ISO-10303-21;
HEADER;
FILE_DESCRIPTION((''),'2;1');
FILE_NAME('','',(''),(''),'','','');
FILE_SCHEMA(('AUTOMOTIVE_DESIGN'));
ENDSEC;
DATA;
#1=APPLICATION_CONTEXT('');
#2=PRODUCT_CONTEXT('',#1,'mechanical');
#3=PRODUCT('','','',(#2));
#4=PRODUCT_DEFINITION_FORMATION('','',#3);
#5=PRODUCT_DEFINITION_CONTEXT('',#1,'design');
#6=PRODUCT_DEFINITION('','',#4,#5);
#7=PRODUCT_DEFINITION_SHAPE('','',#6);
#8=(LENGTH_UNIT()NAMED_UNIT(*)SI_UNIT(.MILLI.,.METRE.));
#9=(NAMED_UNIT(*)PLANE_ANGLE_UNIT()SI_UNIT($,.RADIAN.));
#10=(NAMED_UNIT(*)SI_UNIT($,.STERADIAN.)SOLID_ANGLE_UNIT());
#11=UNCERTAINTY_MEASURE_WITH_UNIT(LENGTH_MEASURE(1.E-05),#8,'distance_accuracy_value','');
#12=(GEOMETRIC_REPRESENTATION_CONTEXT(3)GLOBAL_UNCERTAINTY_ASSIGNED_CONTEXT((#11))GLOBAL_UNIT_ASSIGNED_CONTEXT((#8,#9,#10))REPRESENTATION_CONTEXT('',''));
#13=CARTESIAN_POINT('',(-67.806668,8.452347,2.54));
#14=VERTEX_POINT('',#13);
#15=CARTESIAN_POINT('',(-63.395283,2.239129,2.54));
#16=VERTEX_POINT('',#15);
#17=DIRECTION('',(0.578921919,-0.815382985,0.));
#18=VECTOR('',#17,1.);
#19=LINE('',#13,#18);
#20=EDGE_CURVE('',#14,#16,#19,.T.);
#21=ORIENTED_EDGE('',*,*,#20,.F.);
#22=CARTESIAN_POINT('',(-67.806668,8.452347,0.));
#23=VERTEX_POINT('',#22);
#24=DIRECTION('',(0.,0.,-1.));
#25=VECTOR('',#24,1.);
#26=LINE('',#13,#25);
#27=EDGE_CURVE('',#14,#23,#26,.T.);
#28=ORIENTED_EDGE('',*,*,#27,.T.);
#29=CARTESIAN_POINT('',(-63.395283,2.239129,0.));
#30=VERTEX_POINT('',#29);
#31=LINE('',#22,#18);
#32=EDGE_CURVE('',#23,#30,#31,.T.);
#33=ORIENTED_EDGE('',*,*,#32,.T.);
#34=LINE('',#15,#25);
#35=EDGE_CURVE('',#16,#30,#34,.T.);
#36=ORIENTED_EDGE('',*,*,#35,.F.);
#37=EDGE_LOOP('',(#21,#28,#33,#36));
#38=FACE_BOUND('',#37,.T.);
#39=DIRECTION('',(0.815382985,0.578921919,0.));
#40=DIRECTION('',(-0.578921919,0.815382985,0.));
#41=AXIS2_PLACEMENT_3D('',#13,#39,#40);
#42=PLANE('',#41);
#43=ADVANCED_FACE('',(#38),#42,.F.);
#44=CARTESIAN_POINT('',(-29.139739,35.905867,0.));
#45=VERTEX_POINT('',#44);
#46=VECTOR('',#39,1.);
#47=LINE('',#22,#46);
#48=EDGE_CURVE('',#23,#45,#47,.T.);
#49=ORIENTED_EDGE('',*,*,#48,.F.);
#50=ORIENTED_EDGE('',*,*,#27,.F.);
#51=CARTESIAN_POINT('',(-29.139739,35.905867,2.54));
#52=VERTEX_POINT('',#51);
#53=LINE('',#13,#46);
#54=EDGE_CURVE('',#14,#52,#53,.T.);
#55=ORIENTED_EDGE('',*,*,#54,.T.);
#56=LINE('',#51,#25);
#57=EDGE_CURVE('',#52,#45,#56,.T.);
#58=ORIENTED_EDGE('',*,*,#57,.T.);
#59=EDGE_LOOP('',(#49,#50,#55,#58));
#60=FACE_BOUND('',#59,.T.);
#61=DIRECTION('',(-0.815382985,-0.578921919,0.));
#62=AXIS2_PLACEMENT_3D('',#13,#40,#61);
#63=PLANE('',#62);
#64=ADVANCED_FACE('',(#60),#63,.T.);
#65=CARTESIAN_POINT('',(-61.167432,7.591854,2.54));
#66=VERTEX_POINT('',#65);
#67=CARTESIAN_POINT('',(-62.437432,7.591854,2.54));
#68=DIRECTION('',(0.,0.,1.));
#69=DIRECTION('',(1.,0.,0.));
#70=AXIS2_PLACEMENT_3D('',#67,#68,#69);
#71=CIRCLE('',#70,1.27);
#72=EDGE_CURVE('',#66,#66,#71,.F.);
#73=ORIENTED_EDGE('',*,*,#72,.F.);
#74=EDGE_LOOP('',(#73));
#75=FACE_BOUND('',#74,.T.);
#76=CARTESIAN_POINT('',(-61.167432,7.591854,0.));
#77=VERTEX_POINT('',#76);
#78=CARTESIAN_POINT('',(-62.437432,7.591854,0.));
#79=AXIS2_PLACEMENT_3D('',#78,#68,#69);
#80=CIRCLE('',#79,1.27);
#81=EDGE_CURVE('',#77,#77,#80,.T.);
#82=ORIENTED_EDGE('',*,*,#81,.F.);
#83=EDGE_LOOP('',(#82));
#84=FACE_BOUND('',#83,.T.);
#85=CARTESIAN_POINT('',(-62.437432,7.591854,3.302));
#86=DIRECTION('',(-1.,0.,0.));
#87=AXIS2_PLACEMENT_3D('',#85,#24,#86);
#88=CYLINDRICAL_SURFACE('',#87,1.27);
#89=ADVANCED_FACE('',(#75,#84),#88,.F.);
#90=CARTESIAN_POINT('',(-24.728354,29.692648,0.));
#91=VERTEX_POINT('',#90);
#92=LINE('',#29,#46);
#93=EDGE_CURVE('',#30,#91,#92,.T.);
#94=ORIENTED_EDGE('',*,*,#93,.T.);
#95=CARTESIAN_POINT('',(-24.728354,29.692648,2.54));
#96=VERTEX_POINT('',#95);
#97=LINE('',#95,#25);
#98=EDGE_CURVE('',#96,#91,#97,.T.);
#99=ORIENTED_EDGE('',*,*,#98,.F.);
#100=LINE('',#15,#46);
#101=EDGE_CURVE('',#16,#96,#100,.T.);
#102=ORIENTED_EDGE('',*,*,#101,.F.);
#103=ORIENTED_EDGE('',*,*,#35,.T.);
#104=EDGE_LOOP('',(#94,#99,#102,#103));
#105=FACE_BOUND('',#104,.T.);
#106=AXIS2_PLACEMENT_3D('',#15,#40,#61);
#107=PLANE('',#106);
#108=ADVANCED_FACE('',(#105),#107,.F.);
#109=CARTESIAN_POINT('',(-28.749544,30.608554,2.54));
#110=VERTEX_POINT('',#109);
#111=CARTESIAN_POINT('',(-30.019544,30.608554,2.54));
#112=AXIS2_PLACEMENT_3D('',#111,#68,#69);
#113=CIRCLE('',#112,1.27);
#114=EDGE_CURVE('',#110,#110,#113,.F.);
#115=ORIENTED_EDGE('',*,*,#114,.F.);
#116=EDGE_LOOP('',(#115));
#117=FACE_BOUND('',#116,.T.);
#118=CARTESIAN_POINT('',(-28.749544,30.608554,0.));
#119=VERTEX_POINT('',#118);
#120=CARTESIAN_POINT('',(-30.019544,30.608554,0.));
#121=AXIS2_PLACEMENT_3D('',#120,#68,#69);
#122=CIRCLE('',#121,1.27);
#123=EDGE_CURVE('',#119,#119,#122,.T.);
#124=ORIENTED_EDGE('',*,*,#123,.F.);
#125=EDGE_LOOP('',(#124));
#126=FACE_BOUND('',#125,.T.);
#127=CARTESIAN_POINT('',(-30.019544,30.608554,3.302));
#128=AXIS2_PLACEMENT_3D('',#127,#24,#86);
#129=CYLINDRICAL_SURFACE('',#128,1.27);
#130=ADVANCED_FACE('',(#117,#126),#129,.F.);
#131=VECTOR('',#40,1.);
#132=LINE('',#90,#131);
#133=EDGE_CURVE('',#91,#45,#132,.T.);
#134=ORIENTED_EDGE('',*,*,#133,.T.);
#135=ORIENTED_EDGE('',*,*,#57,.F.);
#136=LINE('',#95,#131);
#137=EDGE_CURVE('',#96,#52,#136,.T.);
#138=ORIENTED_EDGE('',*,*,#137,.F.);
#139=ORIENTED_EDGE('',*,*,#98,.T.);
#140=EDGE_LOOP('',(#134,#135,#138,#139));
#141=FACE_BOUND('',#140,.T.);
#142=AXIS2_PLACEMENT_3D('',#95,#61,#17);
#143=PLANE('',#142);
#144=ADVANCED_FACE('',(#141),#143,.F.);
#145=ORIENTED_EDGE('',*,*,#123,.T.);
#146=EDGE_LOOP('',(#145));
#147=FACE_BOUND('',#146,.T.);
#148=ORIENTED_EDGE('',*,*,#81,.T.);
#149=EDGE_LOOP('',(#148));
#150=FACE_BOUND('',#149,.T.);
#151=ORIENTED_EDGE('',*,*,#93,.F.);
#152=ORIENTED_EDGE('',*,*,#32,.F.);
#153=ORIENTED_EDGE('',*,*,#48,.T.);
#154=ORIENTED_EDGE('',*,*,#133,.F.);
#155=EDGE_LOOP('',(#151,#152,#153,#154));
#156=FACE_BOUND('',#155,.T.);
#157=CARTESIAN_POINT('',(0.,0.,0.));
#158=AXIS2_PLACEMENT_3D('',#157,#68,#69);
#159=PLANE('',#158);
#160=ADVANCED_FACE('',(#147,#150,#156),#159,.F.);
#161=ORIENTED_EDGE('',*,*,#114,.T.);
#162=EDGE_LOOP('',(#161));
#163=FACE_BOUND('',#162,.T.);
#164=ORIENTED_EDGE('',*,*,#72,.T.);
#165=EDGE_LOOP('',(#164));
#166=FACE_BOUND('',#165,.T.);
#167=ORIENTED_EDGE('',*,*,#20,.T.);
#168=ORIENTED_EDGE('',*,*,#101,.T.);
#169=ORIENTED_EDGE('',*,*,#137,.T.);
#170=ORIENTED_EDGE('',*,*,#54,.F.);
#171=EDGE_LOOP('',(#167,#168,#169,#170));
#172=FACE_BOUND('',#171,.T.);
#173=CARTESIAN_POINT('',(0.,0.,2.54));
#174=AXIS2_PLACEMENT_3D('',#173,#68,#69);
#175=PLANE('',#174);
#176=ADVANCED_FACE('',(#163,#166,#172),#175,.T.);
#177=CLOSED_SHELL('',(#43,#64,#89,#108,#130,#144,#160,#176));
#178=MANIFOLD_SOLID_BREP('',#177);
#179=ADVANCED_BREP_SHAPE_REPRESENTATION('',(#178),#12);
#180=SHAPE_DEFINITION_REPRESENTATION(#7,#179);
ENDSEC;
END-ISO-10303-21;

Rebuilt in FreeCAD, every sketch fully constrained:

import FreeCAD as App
import Part
import Sketcher
Q = App.Units.Quantity

doc = App.newDocument("Part")
body = doc.addObject("PartDesign::Body", "Body")

# Sketch on XY plane
sketch1 = body.newObject("Sketcher::SketchObject", "Sketch")
sketch1.AttachmentSupport = (doc.getObject("XY_Plane"), [""])
sketch1.MapMode = "FlatFace"
sketch1.addGeometry(Part.LineSegment(App.Vector(-29.139739, 35.905867, 0), App.Vector(-67.806668, 8.452347, 0)), False)
sketch1.addGeometry(Part.LineSegment(App.Vector(-67.806668, 8.452347, 0), App.Vector(-63.395283, 2.239129, 0)), False)
sketch1.addGeometry(Part.LineSegment(App.Vector(-63.395283, 2.239129, 0), App.Vector(-24.728354, 29.692648, 0)), False)
sketch1.addGeometry(Part.LineSegment(App.Vector(-24.728354, 29.692648, 0), App.Vector(-29.139739, 35.905867, 0)), False)
sketch1.addConstraint(Sketcher.Constraint("Coincident", 0, 2, 1, 1))
sketch1.addConstraint(Sketcher.Constraint("Coincident", 1, 2, 2, 1))
sketch1.addConstraint(Sketcher.Constraint("Coincident", 2, 2, 3, 1))
sketch1.addConstraint(Sketcher.Constraint("Coincident", 3, 2, 0, 1))
sketch1.addConstraint(Sketcher.Constraint("Perpendicular", 0, 1))
sketch1.addConstraint(Sketcher.Constraint("Perpendicular", 1, 2))
sketch1.addConstraint(Sketcher.Constraint("Perpendicular", 2, 3))
sketch1.addConstraint(Sketcher.Constraint("Distance", 1, Q("0.3 in")))
sketch1.addConstraint(Sketcher.Constraint("Distance", 0, Q("1.867 in")))
sketch1.addConstraint(Sketcher.Constraint("DistanceY", 0, 2, 2, 2, Q("21.240301 mm")))
sketch1.addConstraint(Sketcher.Constraint("DistanceX", 0, 2, -1, 1, Q("67.806668 mm")))
sketch1.addConstraint(Sketcher.Constraint("DistanceY", -1, 1, 1, 2, Q("2.239129 mm")))
pad1 = body.newObject("PartDesign::Pad", "Pad")
pad1.Profile = sketch1
pad1.Length = Q("0.1 in")

# Sketch on XY plane
sketch2 = body.newObject("Sketcher::SketchObject", "Sketch001")
sketch2.AttachmentSupport = (doc.getObject("XY_Plane"), [""])
sketch2.MapMode = "FlatFace"
sketch2.addGeometry(Part.Circle(App.Vector(-62.437432, 7.591854, 0), App.Vector(0, 0, 1), 1.27), False)
sketch2.addGeometry(Part.Circle(App.Vector(-30.019544, 30.608554, 0), App.Vector(0, 0, 1), 1.27), False)
sketch2.addConstraint(Sketcher.Constraint("Equal", 0, 1))
sketch2.addConstraint(Sketcher.Constraint("Diameter", 0, Q("0.1 in")))
sketch2.addConstraint(Sketcher.Constraint("DistanceY", 0, 3, 1, 3, Q("23.016701 mm")))
sketch2.addConstraint(Sketcher.Constraint("DistanceX", 0, 3, 1, 3, Q("32.417888 mm")))
sketch2.addConstraint(Sketcher.Constraint("DistanceX", 0, 3, -1, 1, Q("62.437432 mm")))
sketch2.addConstraint(Sketcher.Constraint("DistanceY", -1, 1, 0, 3, Q("7.591854 mm")))
pocket1 = body.newObject("PartDesign::Pocket", "Pocket")
pocket1.Profile = sketch2
pocket1.Length = Q("0.13 in")
pocket1.Reversed = True

doc.recompute()
